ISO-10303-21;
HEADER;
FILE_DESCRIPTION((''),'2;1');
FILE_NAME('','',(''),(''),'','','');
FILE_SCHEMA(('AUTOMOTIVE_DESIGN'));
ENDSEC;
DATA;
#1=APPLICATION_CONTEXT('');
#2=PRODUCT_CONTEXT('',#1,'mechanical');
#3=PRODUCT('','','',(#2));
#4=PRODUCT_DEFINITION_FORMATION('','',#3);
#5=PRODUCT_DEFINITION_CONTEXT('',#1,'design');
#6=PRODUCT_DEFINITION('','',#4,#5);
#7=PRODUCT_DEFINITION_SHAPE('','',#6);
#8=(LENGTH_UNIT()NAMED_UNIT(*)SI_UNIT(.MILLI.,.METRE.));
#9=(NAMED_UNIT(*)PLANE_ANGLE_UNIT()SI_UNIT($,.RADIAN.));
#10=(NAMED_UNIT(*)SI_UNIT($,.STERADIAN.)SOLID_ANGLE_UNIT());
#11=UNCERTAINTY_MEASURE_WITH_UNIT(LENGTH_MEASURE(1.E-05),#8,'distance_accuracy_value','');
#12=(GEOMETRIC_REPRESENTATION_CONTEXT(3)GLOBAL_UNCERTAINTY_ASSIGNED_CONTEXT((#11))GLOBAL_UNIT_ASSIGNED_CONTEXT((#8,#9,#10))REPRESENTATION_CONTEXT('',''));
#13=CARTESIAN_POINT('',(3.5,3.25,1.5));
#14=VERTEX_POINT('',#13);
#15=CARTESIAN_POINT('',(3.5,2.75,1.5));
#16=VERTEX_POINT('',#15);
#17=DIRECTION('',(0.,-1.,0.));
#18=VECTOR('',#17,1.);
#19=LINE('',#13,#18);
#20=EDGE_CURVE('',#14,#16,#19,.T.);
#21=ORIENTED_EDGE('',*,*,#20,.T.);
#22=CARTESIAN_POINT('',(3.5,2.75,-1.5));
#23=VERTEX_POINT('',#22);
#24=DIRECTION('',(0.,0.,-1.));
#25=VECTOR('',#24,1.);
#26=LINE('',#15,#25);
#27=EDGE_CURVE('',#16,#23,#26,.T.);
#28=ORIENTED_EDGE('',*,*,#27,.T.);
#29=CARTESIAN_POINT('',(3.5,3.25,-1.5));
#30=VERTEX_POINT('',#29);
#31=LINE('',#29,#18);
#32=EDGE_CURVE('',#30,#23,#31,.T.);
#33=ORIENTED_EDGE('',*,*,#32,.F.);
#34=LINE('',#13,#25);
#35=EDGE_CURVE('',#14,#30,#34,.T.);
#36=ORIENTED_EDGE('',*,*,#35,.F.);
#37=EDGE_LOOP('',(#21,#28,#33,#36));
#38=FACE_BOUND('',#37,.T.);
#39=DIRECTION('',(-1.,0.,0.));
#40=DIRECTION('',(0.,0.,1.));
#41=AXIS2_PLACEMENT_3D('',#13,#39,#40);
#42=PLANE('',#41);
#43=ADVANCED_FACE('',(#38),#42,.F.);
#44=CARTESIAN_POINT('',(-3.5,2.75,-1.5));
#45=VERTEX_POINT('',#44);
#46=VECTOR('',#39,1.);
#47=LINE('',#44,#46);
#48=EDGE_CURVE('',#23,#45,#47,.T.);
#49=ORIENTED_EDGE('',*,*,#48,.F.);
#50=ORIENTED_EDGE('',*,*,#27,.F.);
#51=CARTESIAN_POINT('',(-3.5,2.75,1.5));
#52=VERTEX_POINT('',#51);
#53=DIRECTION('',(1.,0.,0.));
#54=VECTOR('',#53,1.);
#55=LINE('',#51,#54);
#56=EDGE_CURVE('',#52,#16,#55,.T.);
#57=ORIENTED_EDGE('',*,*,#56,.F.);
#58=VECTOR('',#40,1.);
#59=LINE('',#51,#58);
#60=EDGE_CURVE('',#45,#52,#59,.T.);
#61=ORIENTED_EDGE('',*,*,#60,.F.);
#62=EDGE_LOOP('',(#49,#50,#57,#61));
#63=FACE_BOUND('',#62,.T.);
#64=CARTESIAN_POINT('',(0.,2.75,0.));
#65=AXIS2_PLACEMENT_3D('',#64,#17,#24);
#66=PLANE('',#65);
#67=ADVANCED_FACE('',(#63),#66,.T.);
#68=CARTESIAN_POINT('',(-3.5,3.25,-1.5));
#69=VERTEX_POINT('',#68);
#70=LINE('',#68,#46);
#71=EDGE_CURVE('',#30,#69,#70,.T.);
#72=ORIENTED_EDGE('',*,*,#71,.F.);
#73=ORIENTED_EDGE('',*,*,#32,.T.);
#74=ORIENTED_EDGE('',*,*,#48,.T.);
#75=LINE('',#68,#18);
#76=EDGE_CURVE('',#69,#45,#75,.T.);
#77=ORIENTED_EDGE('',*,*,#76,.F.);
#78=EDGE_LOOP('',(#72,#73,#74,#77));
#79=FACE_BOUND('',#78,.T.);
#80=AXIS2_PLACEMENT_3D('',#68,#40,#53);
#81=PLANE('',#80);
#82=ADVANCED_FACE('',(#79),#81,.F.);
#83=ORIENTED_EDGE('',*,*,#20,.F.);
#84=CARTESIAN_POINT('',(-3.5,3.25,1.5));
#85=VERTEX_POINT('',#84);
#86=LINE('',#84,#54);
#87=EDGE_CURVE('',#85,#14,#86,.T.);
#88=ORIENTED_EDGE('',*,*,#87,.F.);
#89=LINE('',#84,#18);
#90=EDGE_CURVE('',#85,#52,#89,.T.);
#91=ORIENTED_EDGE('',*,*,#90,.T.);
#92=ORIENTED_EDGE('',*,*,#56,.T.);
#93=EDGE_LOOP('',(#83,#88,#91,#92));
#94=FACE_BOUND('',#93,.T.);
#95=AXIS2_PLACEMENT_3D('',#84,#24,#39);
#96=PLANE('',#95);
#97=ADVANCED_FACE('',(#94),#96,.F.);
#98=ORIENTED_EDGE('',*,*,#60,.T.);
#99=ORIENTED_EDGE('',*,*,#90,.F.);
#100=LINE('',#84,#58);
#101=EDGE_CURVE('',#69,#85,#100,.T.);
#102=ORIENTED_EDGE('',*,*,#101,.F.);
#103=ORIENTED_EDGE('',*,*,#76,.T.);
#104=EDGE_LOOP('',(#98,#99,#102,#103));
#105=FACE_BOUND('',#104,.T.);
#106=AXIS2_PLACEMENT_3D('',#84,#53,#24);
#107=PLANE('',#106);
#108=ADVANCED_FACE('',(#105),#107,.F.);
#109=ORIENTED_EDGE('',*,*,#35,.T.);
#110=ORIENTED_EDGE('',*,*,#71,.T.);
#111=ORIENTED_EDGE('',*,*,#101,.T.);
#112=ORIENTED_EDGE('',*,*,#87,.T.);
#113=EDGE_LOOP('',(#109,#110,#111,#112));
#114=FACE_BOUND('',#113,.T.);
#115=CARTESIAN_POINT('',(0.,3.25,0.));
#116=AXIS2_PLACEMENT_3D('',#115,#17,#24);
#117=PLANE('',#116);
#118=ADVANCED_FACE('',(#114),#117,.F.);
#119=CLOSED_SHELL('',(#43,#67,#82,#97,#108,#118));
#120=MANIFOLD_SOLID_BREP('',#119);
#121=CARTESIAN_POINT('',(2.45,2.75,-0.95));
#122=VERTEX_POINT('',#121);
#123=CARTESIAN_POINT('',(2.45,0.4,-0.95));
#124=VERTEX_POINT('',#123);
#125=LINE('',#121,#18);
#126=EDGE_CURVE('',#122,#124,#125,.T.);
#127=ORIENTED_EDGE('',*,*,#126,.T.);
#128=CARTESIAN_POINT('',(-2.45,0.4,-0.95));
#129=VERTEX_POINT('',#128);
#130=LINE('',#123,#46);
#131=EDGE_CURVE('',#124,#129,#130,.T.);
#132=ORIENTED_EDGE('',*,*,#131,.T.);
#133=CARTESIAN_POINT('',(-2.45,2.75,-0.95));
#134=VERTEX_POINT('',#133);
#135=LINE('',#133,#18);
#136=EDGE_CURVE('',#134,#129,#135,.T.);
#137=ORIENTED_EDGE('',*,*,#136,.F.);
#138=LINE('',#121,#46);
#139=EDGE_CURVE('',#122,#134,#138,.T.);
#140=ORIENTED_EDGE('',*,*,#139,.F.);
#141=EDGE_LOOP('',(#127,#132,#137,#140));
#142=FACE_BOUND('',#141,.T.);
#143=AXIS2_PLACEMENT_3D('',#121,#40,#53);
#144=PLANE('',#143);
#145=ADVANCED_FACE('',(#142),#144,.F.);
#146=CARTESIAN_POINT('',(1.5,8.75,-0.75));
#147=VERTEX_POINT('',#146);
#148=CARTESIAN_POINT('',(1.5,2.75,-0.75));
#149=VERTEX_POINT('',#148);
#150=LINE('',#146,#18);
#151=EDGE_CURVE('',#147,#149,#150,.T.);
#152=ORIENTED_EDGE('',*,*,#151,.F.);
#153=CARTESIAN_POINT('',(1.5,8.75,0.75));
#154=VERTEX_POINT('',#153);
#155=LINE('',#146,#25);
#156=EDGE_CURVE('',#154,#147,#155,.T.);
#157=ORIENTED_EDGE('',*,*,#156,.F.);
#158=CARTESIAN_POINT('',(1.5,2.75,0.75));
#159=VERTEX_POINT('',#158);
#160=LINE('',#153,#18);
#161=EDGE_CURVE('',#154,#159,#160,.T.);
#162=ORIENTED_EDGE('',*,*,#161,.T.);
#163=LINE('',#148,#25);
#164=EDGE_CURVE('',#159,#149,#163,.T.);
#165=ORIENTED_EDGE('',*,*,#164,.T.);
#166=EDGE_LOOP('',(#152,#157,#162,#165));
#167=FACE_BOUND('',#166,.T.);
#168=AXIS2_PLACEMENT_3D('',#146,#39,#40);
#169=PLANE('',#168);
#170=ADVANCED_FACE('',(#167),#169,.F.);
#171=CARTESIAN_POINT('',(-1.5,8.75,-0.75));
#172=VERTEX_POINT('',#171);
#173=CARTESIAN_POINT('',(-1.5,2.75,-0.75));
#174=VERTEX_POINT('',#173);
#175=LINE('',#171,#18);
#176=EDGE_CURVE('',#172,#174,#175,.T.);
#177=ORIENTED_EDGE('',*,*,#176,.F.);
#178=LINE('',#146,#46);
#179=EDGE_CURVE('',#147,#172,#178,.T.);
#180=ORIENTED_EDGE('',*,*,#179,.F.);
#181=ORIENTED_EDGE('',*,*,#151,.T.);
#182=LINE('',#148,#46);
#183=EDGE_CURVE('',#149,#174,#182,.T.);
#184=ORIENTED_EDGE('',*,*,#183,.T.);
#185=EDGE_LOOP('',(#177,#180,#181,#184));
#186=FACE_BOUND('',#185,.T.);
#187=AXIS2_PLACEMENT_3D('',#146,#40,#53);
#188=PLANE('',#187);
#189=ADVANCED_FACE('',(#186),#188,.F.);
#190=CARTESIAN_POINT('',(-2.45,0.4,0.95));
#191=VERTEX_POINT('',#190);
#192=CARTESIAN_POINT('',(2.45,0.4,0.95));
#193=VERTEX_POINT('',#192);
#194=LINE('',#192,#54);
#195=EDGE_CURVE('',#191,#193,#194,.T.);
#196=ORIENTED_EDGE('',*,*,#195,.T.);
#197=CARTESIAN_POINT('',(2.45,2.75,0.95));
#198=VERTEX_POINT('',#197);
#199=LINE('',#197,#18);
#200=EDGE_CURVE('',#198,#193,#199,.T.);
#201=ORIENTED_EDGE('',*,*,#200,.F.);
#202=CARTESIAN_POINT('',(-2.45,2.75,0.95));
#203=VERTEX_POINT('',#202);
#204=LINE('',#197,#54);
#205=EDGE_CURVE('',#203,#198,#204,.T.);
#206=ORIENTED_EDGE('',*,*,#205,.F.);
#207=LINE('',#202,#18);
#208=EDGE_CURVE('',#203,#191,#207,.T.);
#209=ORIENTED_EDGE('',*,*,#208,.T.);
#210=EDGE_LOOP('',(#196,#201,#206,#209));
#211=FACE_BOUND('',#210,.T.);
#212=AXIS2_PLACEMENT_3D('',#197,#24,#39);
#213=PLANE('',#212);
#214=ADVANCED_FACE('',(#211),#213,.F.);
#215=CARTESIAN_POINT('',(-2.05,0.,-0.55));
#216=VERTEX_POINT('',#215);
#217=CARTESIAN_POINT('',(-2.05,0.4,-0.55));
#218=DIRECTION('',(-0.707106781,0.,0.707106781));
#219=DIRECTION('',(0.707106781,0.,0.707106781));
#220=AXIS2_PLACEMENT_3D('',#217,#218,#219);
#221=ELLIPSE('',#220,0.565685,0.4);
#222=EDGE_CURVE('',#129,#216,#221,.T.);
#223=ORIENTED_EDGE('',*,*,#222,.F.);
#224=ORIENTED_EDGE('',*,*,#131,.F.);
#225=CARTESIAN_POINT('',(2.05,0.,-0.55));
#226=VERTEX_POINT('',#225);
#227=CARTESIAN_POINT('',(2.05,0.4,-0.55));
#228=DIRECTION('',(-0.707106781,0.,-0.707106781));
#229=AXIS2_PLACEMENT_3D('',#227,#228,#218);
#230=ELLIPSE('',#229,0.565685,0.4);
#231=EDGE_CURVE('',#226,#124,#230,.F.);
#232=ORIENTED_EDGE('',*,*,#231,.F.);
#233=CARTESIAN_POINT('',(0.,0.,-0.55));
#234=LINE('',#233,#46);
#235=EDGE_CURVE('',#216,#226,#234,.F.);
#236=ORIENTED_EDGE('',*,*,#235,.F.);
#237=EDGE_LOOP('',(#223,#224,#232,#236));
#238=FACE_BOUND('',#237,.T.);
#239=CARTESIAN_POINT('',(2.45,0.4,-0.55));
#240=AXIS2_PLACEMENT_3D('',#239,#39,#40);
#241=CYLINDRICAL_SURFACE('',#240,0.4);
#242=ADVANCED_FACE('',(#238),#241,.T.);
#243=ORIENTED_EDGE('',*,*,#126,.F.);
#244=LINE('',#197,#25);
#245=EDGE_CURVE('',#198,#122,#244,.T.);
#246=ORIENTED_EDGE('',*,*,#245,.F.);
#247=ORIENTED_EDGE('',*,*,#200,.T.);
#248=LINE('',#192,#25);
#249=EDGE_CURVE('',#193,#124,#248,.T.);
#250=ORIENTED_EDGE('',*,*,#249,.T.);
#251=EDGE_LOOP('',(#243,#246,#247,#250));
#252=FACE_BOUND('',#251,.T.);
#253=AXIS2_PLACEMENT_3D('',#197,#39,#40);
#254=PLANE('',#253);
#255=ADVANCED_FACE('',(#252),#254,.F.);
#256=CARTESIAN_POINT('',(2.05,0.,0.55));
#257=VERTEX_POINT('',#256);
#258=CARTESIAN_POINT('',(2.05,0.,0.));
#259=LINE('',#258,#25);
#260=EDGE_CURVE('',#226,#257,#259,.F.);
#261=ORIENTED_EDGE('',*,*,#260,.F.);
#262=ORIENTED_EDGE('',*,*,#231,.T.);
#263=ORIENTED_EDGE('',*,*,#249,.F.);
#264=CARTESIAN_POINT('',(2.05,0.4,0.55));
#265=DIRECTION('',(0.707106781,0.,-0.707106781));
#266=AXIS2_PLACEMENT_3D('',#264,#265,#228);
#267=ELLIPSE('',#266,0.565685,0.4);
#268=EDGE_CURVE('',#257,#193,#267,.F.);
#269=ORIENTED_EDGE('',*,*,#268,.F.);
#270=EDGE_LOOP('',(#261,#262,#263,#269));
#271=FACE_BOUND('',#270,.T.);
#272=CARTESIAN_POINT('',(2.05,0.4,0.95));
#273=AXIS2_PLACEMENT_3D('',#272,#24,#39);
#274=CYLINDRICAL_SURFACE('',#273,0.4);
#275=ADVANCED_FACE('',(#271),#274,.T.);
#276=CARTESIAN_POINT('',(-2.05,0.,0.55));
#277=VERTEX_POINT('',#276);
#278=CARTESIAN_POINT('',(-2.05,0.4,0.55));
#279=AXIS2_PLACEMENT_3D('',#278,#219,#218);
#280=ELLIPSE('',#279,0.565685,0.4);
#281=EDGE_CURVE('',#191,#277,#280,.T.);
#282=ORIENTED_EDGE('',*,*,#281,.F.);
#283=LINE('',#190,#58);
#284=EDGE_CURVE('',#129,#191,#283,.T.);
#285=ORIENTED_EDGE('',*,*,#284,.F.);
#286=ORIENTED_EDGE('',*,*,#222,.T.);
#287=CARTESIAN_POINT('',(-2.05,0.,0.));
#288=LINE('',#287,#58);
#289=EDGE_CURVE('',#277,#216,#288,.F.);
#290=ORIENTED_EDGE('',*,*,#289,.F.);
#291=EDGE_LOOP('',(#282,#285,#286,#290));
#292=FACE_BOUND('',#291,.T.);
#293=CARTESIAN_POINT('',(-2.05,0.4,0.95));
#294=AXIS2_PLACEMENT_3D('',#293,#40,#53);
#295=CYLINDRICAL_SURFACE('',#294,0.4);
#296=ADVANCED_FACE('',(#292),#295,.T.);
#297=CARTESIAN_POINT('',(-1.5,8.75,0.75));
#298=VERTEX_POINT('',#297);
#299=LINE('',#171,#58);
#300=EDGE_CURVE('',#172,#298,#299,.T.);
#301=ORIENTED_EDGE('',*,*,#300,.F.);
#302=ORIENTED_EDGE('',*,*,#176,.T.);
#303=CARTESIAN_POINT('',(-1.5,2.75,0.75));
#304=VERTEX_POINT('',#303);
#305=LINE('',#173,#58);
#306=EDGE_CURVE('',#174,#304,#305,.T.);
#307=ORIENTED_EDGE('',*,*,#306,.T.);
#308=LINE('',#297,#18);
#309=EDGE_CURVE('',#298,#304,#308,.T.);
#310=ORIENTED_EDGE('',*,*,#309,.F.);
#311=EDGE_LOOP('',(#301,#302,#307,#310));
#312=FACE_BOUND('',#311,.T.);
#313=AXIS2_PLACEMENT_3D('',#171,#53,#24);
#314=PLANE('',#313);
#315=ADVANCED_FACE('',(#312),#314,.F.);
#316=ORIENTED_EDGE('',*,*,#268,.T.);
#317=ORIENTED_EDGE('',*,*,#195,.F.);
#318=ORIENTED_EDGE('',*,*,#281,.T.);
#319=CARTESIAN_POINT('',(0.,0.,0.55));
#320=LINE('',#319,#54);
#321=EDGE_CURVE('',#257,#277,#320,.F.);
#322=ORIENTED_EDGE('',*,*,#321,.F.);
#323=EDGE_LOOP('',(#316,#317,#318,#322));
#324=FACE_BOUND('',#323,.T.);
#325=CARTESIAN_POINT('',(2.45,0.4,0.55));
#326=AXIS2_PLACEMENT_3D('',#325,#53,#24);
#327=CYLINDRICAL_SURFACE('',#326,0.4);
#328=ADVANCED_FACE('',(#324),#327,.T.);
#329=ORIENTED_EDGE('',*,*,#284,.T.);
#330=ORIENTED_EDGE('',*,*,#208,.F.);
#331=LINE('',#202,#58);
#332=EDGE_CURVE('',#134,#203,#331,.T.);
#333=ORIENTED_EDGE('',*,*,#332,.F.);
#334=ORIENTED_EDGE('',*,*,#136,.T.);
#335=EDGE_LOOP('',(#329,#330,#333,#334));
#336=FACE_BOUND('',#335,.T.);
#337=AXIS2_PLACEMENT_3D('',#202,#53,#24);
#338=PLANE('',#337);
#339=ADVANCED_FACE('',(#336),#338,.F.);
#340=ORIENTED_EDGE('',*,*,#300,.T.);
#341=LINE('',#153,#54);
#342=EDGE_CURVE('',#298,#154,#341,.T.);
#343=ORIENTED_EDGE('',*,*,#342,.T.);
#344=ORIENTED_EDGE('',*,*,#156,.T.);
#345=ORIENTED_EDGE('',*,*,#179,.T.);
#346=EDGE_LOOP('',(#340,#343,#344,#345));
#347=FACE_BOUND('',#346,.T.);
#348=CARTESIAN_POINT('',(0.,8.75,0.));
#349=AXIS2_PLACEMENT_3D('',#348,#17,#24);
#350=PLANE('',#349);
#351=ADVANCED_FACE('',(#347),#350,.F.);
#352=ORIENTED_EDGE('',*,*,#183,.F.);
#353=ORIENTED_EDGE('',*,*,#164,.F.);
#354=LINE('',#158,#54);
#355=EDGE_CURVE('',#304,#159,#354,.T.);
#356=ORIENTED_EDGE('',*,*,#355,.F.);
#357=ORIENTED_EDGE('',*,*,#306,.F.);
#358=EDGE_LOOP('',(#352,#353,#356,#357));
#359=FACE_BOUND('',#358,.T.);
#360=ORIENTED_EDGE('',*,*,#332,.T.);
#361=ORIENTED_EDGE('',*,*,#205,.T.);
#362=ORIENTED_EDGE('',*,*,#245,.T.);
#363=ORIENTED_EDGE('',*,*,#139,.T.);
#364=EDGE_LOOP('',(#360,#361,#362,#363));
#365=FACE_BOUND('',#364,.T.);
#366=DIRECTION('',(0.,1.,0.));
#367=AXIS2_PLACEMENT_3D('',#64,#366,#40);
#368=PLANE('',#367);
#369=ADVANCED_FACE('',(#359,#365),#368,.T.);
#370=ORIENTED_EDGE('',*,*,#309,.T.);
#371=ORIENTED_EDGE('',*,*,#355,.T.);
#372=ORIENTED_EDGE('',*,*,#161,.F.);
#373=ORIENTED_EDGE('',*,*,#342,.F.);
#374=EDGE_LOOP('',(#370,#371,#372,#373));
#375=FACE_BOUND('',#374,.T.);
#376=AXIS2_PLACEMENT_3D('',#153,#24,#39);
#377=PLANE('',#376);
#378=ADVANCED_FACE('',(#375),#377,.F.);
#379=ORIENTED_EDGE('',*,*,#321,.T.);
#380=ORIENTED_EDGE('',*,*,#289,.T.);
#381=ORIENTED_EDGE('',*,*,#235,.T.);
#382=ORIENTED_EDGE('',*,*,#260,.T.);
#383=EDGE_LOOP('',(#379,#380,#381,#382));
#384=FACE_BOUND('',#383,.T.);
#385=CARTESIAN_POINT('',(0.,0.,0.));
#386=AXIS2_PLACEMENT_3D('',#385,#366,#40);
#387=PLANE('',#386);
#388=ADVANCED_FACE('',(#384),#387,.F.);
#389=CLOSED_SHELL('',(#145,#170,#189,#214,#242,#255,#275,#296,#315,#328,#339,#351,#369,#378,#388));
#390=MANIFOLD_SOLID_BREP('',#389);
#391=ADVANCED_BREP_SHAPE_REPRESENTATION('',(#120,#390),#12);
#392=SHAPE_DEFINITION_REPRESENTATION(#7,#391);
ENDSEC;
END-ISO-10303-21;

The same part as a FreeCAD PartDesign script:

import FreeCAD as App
import Part
import Sketcher


def edges_at(feature, points):
    """Names of the edges that pass closest to the given points."""
    edges = feature.Shape.Edges
    near = lambda p: min(range(len(edges)), key=lambda i: edges[i].distToShape(Part.Vertex(*p))[0])
    return sorted({f"Edge{near(p) + 1}" for p in points})


def add_polygon(sketch, points):
    """Adds a closed chain of lines whose ends are joined by coincident constraints."""
    first, n = sketch.GeometryCount, len(points)
    for a, b in zip(points, points[1:] + points[:1]):
        sketch.addGeometry(Part.LineSegment(App.Vector(*a, 0), App.Vector(*b, 0)), False)
    for i in range(n):
        sketch.addConstraint(Sketcher.Constraint("Coincident", first + i, 2, first + (i + 1) % n, 1))

doc = App.newDocument("Part")
params = doc.addObject("Spreadsheet::Sheet", "Params")
for row, (alias, value) in enumerate([
    ("sketch1_width", "4.9 mm"),
    ("sketch1_height", "1.9 mm"),
    ("pad1_length", "2.75 mm"),
    ("sketch2_width", "3 mm"),
    ("sketch2_height", "1.5 mm"),
    ("pad2_length", "6 mm"),
    ("fillet_radius", "0.4 mm"),
    ("sketch3_width", "7 mm"),
    ("sketch3_height", "3 mm"),
    ("pad3_length", "0.5 mm"),
], start=1):
    params.set(f"A{row}", alias)
    params.set(f"B{row}", "=" + value)
    params.setAlias(f"B{row}", alias)

body = doc.addObject("PartDesign::Body", "Body")

sketch1 = doc.addObject("Sketcher::SketchObject", "Sketch")
body.addObject(sketch1)
sketch1.AttachmentSupport = (doc.XZ_Plane, [""])
sketch1.MapMode = "FlatFace"
add_polygon(sketch1, [(-2.5, -0.9), (-2.5, 0.9), (2.5, 0.9), (2.5, -0.9)])
sketch1.addConstraint([
    Sketcher.Constraint("Vertical", 0),
    Sketcher.Constraint("Horizontal", 1),
    Sketcher.Constraint("Vertical", 2),
    Sketcher.Constraint("Horizontal", 3),
    Sketcher.Constraint("Symmetric", 0, 2, 2, 2, -1, 1),
    Sketcher.Constraint("DistanceX", 1, 1, 1, 2, 4.9),
    Sketcher.Constraint("DistanceY", 0, 1, 0, 2, 1.9),
])
sketch1.setExpression("Constraints[9]", "Params.sketch1_width")
sketch1.setExpression("Constraints[10]", "Params.sketch1_height")
pad1 = doc.addObject("PartDesign::Pad", "Pad")
body.addObject(pad1)
pad1.Profile = sketch1
pad1.setExpression("Length", "Params.pad1_length")
pad1.Reversed = True

sketch2 = doc.addObject("Sketcher::SketchObject", "Sketch001")
body.addObject(sketch2)
sketch2.AttachmentSupport = (doc.XZ_Plane, [""])
sketch2.MapMode = "FlatFace"
sketch2.AttachmentOffset = App.Placement(App.Vector(0, 0, -2.75), App.Rotation())
add_polygon(sketch2, [(-1.5, -0.8), (-1.5, 0.8), (1.5, 0.8), (1.5, -0.8)])
sketch2.addConstraint([
    Sketcher.Constraint("Vertical", 0),
    Sketcher.Constraint("Horizontal", 1),
    Sketcher.Constraint("Vertical", 2),
    Sketcher.Constraint("Horizontal", 3),
    Sketcher.Constraint("Symmetric", 0, 2, 2, 2, -1, 1),
    Sketcher.Constraint("DistanceX", 1, 1, 1, 2, 3.0),
    Sketcher.Constraint("DistanceY", 0, 1, 0, 2, 1.5),
])
sketch2.setExpression("Constraints[9]", "Params.sketch2_width")
sketch2.setExpression("Constraints[10]", "Params.sketch2_height")
pad2 = doc.addObject("PartDesign::Pad", "Pad001")
body.addObject(pad2)
pad2.Profile = sketch2
pad2.setExpression("Length", "Params.pad2_length")
pad2.Reversed = True
doc.recompute()

fillet = doc.addObject("PartDesign::Fillet", "Fillet")
body.addObject(fillet)
fillet.Base = (pad2, edges_at(pad2, [
    (0, 0, -0.95),
    (2.45, 0, 0),
    (0, 0, 0.95),
    (-2.45, 0, 0),
]))
fillet.setExpression("Radius", "Params.fillet_radius")
body2 = doc.addObject("PartDesign::Body", "Body001")

sketch3 = doc.addObject("Sketcher::SketchObject", "Sketch002")
body2.addObject(sketch3)
sketch3.AttachmentSupport = (doc.getObject("XZ_Plane001"), [""])
sketch3.MapMode = "FlatFace"
sketch3.AttachmentOffset = App.Placement(App.Vector(0, 0, -2.75), App.Rotation())
add_polygon(sketch3, [(-3.5, -1.5), (-3.5, 1.5), (3.5, 1.5), (3.5, -1.5)])
sketch3.addConstraint([
    Sketcher.Constraint("Vertical", 0),
    Sketcher.Constraint("Horizontal", 1),
    Sketcher.Constraint("Vertical", 2),
    Sketcher.Constraint("Horizontal", 3),
    Sketcher.Constraint("Symmetric", 0, 2, 2, 2, -1, 1),
    Sketcher.Constraint("DistanceX", 1, 1, 1, 2, 7.0),
    Sketcher.Constraint("DistanceY", 0, 1, 0, 2, 3.0),
])
sketch3.setExpression("Constraints[9]", "Params.sketch3_width")
sketch3.setExpression("Constraints[10]", "Params.sketch3_height")
pad3 = doc.addObject("PartDesign::Pad", "Pad002")
body2.addObject(pad3)
pad3.Profile = sketch3
pad3.setExpression("Length", "Params.pad3_length")
pad3.Reversed = True

doc.recompute()
